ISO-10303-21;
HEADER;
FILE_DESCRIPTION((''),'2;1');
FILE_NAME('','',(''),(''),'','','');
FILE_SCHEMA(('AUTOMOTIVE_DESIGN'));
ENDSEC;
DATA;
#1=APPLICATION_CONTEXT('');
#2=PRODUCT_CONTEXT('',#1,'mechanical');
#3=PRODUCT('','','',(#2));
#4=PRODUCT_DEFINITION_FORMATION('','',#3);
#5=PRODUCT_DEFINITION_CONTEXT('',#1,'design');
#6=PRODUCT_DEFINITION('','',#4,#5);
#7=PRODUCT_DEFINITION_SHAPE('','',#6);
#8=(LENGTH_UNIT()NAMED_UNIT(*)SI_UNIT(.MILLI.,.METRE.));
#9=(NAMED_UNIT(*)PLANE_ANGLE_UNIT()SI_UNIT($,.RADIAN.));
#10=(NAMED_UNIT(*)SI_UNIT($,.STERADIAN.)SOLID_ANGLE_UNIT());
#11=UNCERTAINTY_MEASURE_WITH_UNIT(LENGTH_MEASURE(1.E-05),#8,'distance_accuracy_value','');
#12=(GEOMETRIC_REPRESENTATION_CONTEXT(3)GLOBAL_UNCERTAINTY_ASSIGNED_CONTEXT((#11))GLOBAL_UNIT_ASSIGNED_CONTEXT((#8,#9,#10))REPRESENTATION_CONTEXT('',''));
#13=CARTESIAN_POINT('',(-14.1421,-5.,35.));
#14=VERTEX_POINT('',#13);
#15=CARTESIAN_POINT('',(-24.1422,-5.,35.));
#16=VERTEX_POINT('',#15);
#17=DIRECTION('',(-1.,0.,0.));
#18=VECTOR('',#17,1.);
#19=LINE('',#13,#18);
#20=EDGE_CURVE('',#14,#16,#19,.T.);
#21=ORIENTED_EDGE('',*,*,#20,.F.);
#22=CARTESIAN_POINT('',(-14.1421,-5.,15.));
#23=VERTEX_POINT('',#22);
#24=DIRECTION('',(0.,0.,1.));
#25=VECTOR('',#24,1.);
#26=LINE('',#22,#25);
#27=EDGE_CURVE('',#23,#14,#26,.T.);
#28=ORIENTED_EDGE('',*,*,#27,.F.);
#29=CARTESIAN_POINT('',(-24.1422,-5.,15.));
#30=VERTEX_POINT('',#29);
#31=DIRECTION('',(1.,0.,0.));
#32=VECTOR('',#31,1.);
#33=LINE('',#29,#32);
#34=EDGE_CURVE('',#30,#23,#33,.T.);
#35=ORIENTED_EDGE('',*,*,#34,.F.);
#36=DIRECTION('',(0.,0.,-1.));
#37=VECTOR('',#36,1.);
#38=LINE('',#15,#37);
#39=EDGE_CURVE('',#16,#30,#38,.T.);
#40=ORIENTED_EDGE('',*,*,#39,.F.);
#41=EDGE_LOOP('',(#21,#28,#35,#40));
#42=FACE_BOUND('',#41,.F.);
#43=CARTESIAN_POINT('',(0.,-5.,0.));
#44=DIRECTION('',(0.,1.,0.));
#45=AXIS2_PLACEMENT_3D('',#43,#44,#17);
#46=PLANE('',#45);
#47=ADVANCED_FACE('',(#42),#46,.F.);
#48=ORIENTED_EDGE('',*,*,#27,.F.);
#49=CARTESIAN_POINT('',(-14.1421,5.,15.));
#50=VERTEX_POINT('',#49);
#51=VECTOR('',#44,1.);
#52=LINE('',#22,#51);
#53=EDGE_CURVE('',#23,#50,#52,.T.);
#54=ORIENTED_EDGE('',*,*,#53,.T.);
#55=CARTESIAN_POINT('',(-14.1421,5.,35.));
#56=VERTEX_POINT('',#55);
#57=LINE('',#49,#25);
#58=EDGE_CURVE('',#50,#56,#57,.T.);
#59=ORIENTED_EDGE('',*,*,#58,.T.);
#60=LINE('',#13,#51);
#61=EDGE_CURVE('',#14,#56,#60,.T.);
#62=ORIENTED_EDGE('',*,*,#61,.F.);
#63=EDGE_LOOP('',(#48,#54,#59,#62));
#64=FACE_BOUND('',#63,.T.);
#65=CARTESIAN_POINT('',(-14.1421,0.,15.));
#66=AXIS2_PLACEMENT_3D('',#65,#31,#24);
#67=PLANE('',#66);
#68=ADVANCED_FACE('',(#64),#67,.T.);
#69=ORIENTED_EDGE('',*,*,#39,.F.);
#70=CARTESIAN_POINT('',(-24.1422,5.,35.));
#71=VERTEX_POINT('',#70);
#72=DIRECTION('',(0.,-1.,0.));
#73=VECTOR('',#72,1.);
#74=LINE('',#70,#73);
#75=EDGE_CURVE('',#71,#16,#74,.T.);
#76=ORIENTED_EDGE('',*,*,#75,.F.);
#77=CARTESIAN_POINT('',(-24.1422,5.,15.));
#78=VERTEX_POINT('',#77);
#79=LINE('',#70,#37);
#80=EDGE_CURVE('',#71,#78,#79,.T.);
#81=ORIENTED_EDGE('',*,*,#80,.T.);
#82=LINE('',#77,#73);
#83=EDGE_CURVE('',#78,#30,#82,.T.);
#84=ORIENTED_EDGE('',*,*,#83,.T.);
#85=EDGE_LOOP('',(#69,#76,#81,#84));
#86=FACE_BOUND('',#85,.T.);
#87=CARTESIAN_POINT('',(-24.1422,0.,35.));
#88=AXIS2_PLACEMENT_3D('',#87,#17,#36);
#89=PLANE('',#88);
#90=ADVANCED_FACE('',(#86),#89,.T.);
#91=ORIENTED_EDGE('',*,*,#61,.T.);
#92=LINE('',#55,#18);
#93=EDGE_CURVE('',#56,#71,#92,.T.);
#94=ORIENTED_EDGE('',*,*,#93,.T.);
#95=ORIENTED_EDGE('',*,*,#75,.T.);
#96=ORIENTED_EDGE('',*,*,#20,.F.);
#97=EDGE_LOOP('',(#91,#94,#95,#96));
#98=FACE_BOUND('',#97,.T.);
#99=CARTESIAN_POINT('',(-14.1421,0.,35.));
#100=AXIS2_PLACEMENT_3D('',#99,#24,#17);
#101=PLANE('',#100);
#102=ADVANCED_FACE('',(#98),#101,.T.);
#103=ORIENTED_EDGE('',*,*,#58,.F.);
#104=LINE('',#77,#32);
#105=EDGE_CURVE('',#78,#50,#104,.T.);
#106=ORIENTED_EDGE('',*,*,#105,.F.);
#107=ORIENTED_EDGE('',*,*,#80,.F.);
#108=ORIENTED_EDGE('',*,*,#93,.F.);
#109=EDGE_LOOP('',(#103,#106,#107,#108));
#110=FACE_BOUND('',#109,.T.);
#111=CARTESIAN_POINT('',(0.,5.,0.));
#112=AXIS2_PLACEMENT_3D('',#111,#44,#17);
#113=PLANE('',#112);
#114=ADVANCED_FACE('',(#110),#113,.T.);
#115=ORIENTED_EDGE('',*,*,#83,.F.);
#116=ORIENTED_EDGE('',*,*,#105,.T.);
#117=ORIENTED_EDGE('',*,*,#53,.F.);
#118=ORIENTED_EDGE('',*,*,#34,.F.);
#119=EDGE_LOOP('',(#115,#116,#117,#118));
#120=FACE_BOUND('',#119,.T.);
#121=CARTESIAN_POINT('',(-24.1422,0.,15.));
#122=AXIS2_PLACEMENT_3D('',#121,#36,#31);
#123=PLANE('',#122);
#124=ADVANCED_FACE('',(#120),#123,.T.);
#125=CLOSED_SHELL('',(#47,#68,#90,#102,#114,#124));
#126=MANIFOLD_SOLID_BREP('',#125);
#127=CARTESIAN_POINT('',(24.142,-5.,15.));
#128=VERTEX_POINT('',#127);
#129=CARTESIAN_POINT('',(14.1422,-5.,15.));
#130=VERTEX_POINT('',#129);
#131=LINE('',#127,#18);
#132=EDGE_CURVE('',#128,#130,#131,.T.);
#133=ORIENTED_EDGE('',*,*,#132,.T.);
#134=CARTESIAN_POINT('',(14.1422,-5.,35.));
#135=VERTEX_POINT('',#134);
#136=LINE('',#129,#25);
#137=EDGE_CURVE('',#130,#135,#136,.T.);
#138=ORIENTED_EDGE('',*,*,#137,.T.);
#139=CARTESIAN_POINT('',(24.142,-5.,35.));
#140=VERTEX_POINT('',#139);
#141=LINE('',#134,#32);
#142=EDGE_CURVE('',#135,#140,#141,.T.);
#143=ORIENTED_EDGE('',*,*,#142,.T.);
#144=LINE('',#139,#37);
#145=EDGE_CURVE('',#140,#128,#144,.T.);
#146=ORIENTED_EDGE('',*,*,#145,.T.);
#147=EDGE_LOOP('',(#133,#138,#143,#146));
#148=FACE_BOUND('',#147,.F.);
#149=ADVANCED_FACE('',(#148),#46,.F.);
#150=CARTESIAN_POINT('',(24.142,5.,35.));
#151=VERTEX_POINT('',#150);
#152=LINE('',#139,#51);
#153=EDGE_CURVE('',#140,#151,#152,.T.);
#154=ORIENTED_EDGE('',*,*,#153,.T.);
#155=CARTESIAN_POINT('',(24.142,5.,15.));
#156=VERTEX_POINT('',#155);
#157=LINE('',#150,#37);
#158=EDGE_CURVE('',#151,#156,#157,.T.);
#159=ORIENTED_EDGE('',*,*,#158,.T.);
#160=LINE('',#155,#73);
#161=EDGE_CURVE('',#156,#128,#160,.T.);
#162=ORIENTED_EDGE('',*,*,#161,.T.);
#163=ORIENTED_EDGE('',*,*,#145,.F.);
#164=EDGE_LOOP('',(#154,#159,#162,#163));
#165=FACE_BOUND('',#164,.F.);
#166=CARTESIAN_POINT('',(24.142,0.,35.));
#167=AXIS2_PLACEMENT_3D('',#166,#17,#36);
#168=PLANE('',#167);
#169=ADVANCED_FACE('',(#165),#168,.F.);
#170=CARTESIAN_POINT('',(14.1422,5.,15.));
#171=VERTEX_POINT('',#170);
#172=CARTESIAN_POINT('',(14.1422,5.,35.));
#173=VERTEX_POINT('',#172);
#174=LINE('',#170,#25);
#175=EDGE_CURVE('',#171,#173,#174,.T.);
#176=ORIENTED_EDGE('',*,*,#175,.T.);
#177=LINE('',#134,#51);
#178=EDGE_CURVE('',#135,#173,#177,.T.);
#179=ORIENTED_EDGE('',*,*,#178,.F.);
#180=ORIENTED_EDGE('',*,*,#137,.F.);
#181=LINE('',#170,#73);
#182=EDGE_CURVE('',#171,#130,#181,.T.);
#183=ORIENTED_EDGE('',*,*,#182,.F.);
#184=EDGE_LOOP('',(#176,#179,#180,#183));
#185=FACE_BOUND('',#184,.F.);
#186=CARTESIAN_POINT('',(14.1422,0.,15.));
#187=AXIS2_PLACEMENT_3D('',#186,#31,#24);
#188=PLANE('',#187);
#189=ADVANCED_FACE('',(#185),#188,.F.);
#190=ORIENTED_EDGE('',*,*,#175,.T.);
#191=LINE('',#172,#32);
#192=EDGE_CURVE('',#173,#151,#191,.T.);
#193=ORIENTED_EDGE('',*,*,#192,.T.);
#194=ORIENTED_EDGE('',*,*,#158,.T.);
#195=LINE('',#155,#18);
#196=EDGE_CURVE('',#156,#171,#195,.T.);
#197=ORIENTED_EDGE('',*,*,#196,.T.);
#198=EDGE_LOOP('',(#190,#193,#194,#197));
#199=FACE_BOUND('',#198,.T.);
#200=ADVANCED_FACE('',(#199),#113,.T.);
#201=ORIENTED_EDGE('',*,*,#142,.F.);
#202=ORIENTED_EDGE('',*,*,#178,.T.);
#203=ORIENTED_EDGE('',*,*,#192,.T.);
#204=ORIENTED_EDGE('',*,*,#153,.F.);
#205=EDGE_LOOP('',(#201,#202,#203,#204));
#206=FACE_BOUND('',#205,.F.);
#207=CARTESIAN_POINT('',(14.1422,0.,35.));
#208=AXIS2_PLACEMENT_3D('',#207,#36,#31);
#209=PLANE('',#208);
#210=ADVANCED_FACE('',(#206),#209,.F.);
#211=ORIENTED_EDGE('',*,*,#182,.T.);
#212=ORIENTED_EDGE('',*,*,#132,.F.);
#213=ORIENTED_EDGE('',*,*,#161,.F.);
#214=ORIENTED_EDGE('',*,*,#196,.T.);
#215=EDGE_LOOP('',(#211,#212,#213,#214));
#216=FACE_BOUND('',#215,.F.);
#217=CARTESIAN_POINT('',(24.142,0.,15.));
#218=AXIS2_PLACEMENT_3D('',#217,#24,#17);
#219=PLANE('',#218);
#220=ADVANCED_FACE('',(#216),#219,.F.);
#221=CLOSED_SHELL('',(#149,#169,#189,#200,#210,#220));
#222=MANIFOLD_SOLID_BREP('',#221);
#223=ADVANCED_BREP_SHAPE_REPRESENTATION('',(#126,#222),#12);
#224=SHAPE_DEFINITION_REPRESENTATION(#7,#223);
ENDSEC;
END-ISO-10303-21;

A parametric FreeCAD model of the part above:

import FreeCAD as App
import Part
import Sketcher
from FreeCAD import Vector
Q = App.Units.Quantity

doc = App.newDocument("Part")
body = doc.addObject("PartDesign::Body", "Body")
body.AllowCompound = True

# Sketch on XZ plane
sketch1 = body.newObject("Sketcher::SketchObject", "Sketch")
sketch1.AttachmentSupport = (doc.getObject("XZ_Plane"), [""])
sketch1.MapMode = "FlatFace"
sketch1.addGeometry([
    Part.LineSegment(Vector(14, 15, 0), Vector(14, 35, 0)),  # 0
    Part.LineSegment(Vector(14, 35, 0), Vector(24, 35, 0)),  # 1
    Part.LineSegment(Vector(24, 35, 0), Vector(24, 15, 0)),  # 2
    Part.LineSegment(Vector(24, 15, 0), Vector(14, 15, 0)),  # 3
    Part.LineSegment(Vector(-24, 35, 0), Vector(-14, 35, 0)),  # 4
    Part.LineSegment(Vector(-14, 35, 0), Vector(-14, 15, 0)),  # 5
    Part.LineSegment(Vector(-14, 15, 0), Vector(-24, 15, 0)),  # 6
    Part.LineSegment(Vector(-24, 15, 0), Vector(-24, 35, 0)),  # 7
], False)
sketch1.addConstraint([
    Sketcher.Constraint("Coincident", 0, 2, 1, 1),
    Sketcher.Constraint("Coincident", 1, 2, 2, 1),
    Sketcher.Constraint("Coincident", 2, 2, 3, 1),
    Sketcher.Constraint("Coincident", 3, 2, 0, 1),
    Sketcher.Constraint("Coincident", 4, 2, 5, 1),
    Sketcher.Constraint("Coincident", 5, 2, 6, 1),
    Sketcher.Constraint("Coincident", 6, 2, 7, 1),
    Sketcher.Constraint("Coincident", 7, 2, 4, 1),
    Sketcher.Constraint("Vertical", 0),
    Sketcher.Constraint("Horizontal", 1),
    Sketcher.Constraint("Vertical", 2),
    Sketcher.Constraint("Horizontal", 3),
    Sketcher.Constraint("Horizontal", 4),
    Sketcher.Constraint("Vertical", 5),
    Sketcher.Constraint("Horizontal", 6),
    Sketcher.Constraint("Vertical", 7),
    Sketcher.Constraint("Symmetric", 0, 2, 4, 2, -2),
    Sketcher.Constraint("Symmetric", 2, 2, 6, 2, -2),
    Sketcher.Constraint("DistanceX", 4, 1, 4, 2, Q("10 mm")),
    Sketcher.Constraint("DistanceY", 0, 1, 0, 2, Q("20 mm")),
    Sketcher.Constraint("DistanceY", -1, 1, 0, 2, Q("35 mm")),
    Sketcher.Constraint("DistanceX", -1, 1, 1, 2, Q("24.142 mm")),
])
pad1 = body.newObject("PartDesign::Pad", "Pad")
pad1.Profile = sketch1
pad1.Length = 10
pad1.Midplane = True

doc.recompute()
